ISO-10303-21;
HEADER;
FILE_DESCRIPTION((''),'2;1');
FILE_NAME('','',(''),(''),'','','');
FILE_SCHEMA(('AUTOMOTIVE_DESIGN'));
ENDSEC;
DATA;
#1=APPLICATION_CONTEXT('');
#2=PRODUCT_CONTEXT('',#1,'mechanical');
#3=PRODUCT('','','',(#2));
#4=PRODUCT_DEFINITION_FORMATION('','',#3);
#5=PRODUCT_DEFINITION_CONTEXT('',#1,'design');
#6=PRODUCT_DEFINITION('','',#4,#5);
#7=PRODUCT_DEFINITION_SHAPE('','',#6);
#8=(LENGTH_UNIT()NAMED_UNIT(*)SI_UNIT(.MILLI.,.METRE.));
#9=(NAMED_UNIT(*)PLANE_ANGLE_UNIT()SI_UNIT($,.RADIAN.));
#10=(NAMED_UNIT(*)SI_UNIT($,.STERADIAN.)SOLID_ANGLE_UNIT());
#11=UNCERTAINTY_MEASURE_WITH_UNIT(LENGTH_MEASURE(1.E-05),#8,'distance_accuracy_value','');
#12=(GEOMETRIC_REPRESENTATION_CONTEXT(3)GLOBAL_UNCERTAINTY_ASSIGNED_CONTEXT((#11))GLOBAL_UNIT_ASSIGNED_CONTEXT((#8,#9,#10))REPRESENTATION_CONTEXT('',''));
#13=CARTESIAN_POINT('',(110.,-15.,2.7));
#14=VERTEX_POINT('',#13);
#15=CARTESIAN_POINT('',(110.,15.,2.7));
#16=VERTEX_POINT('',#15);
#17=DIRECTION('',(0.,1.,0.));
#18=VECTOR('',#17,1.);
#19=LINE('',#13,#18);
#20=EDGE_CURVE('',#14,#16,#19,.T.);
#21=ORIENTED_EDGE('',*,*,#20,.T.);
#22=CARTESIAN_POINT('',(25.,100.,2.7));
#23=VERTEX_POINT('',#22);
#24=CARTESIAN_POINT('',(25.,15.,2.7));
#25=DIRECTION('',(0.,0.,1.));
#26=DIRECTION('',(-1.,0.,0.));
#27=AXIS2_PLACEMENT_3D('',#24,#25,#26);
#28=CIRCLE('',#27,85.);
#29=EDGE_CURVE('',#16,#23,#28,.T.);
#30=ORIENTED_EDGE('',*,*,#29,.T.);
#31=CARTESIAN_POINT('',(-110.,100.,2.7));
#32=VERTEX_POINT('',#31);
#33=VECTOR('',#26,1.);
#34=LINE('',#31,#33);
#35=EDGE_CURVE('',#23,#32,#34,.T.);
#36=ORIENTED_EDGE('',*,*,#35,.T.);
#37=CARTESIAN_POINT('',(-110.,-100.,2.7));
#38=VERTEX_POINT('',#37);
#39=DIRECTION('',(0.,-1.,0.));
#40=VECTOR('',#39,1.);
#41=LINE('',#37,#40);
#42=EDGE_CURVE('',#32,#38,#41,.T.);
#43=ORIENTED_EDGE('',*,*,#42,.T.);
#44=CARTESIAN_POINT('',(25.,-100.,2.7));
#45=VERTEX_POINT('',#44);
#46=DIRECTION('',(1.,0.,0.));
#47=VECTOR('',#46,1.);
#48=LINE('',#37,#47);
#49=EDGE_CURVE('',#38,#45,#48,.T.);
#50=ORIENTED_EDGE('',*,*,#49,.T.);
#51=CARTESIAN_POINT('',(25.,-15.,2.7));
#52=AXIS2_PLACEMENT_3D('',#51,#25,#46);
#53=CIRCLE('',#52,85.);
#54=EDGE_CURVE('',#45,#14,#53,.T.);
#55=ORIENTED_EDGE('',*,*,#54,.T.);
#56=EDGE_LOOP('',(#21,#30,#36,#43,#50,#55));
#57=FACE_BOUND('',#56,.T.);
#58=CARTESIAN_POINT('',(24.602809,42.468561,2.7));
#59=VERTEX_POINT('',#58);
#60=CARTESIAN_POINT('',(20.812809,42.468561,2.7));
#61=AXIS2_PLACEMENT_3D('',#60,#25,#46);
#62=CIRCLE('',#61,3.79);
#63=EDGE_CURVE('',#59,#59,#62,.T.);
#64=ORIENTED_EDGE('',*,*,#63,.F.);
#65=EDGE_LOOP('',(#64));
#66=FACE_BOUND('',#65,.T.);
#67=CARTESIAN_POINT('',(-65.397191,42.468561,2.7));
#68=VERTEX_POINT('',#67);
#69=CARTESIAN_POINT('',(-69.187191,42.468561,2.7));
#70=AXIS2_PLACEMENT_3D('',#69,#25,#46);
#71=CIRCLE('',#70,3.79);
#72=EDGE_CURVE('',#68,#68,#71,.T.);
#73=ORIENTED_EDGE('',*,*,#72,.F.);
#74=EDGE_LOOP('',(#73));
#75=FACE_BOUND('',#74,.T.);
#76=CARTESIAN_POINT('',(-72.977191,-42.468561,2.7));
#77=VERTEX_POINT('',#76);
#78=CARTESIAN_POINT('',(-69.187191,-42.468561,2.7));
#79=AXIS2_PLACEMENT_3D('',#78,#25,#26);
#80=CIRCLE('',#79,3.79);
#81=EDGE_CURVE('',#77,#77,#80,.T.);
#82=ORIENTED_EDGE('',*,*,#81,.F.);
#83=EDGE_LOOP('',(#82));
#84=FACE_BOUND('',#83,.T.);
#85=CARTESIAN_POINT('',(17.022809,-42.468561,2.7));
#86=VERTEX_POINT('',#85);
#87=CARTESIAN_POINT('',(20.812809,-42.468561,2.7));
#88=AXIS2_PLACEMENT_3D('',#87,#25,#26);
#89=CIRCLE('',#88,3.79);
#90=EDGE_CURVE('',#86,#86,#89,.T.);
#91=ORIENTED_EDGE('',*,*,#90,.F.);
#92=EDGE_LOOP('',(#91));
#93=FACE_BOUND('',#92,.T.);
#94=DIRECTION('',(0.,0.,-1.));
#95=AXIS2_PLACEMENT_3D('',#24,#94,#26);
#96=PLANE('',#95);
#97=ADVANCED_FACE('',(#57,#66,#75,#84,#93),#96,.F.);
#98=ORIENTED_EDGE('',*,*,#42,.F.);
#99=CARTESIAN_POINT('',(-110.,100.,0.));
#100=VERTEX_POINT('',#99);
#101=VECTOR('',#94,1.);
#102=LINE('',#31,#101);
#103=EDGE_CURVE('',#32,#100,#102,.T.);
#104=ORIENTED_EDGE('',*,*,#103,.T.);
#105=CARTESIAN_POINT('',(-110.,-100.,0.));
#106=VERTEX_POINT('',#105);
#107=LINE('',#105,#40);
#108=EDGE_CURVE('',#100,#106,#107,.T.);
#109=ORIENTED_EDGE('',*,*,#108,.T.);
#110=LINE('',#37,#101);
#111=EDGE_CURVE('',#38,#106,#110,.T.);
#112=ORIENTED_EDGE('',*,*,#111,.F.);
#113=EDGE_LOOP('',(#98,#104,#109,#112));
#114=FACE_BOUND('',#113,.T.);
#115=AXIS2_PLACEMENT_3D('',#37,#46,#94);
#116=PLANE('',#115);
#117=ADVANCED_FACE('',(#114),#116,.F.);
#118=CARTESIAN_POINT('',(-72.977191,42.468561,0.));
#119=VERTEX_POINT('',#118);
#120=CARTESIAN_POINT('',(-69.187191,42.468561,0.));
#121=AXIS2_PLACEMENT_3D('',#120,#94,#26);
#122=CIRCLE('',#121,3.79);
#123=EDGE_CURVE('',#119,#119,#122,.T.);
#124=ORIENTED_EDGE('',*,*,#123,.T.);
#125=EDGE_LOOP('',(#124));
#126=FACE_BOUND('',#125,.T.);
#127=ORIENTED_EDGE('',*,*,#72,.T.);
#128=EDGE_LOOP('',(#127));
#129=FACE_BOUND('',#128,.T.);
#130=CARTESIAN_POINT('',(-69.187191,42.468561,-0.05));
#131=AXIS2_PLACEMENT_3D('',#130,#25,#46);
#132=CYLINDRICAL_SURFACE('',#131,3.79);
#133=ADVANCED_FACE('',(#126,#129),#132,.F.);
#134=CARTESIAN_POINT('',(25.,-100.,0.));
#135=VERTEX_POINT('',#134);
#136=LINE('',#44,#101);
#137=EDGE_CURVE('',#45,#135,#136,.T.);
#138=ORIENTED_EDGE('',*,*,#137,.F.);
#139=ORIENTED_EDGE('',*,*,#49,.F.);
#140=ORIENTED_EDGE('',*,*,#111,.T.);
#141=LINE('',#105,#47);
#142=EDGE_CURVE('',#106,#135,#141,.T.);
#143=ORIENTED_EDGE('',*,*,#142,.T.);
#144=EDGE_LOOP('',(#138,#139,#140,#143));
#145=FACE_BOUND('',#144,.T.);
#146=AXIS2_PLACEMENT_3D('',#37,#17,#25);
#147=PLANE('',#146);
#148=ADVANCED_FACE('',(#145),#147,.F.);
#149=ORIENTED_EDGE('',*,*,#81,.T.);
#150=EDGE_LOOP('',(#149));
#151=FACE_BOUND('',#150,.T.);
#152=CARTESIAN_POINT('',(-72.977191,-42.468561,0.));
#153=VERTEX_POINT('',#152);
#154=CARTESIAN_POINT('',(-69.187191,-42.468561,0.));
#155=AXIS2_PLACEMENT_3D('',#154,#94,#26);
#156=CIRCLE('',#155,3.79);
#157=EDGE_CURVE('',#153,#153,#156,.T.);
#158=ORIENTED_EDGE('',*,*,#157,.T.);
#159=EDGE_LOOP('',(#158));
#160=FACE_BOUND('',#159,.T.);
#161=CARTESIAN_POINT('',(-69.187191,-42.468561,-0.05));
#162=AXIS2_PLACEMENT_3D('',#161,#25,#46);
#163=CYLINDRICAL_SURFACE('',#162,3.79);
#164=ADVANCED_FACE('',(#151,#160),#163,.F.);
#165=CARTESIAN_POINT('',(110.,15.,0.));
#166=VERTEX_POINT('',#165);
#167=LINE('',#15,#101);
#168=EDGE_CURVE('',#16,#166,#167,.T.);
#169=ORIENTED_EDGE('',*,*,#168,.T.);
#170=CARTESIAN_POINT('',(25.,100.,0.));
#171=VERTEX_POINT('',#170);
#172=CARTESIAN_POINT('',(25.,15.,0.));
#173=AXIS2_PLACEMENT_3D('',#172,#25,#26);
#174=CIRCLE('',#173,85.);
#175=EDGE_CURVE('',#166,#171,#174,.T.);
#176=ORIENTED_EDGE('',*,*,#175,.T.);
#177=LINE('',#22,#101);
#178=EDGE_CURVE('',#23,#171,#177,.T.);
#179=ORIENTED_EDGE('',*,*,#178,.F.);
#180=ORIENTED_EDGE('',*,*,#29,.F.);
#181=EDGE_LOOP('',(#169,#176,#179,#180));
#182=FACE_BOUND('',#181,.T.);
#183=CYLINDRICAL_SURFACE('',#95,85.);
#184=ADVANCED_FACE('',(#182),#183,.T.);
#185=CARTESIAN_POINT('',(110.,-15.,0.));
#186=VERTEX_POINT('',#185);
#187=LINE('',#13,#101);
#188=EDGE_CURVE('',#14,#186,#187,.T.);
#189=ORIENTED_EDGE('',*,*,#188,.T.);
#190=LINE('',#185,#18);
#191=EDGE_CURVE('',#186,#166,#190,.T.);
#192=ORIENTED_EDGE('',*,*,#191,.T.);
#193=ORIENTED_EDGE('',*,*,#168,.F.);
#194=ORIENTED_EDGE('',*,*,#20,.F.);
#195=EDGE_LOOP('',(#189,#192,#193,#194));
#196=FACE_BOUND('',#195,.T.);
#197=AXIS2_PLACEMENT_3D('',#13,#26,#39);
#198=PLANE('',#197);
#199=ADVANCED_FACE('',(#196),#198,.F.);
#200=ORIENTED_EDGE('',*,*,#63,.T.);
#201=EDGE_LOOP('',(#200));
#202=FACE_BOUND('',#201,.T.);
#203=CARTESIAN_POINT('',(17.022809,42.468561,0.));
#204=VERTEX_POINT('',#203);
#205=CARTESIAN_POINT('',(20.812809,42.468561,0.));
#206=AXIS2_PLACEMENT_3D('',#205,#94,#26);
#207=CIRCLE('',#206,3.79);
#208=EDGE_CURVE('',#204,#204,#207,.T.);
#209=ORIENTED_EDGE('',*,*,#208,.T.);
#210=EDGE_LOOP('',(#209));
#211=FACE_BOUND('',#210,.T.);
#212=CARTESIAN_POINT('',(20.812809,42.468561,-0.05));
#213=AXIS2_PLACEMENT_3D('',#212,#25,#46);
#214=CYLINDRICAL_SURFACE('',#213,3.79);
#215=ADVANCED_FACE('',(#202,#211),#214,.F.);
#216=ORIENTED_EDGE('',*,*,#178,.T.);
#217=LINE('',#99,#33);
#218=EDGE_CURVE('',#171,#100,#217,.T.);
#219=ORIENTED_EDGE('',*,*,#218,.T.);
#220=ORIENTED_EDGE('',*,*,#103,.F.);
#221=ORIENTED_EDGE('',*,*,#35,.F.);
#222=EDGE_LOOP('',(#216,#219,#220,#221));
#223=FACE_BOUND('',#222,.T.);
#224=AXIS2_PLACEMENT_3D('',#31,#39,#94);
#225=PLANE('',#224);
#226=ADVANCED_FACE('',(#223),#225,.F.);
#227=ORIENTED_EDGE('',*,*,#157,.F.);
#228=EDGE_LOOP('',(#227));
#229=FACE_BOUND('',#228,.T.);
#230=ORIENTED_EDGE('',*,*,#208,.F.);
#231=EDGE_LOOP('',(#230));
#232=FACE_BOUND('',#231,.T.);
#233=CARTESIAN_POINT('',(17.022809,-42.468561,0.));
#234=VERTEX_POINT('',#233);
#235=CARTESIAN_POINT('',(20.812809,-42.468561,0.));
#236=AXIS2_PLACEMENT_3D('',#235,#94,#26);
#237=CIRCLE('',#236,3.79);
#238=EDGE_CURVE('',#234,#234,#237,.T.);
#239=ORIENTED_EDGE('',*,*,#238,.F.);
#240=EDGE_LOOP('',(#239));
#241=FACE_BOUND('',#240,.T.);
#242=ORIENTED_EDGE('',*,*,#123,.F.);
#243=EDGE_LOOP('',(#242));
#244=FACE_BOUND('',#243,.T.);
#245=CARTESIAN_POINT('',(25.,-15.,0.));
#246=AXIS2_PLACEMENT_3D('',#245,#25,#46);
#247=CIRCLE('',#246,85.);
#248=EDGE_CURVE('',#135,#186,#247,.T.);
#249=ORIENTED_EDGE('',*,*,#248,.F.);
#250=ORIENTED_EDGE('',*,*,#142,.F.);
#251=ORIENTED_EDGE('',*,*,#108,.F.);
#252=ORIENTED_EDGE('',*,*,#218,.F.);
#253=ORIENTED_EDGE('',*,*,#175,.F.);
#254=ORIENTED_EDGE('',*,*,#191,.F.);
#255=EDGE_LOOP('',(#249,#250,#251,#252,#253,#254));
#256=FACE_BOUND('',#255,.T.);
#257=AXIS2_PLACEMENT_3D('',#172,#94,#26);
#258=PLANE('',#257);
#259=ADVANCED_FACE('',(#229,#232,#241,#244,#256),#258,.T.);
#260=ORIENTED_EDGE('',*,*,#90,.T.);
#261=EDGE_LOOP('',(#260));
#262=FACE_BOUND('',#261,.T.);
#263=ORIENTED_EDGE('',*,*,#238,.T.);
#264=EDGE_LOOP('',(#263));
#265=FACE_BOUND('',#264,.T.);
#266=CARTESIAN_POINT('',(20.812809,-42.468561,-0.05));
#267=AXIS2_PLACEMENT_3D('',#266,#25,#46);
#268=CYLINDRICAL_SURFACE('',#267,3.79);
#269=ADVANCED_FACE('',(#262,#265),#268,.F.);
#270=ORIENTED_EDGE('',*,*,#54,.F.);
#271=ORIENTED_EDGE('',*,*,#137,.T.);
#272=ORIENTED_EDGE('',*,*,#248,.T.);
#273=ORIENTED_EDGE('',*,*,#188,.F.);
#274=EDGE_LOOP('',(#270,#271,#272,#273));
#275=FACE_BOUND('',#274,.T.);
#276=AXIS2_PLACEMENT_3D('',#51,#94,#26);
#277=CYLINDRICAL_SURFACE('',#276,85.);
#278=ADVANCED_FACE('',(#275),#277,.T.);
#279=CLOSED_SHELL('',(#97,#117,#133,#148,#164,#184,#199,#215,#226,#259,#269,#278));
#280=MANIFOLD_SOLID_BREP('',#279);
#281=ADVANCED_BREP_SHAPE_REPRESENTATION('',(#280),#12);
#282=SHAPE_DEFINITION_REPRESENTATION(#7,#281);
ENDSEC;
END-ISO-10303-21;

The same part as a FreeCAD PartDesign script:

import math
import FreeCAD as App
import Part
import Sketcher
from FreeCAD import Vector
Q = App.Units.Quantity

doc = App.newDocument("Part")
body = doc.addObject("PartDesign::Body", "Body")

sketch1 = doc.addObject("Sketcher::SketchObject", "Sketch")
body.addObject(sketch1)
sketch1.AttachmentSupport = (doc.XY_Plane, [""])
sketch1.MapMode = "FlatFace"
sketch1.addGeometry([
    Part.LineSegment(Vector(-110, -100, 0), Vector(25, -100, 0)),
    Part.ArcOfCircle(Part.Circle(Vector(25, -15, 0), Vector(0, 0, 1), 85), math.radians(-90), math.radians(0)),
    Part.LineSegment(Vector(110, -15, 0), Vector(110, 15, 0)),
    Part.ArcOfCircle(Part.Circle(Vector(25, 15, 0), Vector(0, 0, 1), 85), math.radians(0), math.radians(90)),
    Part.LineSegment(Vector(25, 100, 0), Vector(-110, 100, 0)),
    Part.LineSegment(Vector(-110, 100, 0), Vector(-110, -100, 0)),
], False)
sketch1.addConstraint([
    Sketcher.Constraint("Tangent", 0, 2, 1, 1),
    Sketcher.Constraint("Tangent", 1, 2, 2, 1),
    Sketcher.Constraint("Tangent", 2, 2, 3, 1),
    Sketcher.Constraint("Tangent", 3, 2, 4, 1),
    Sketcher.Constraint("Coincident", 4, 2, 5, 1),
    Sketcher.Constraint("Coincident", 5, 2, 0, 1),
    Sketcher.Constraint("Horizontal", 0),
    Sketcher.Constraint("Vertical", 2),
    Sketcher.Constraint("Horizontal", 4),
    Sketcher.Constraint("Vertical", 5),
    Sketcher.Constraint("Equal", 1, 3),
    Sketcher.Constraint("Radius", 1, Q("85 mm")),
    Sketcher.Constraint("DistanceX", 0, 1, 0, 2, Q("135 mm")),
    Sketcher.Constraint("DistanceY", 2, 1, 2, 2, Q("30 mm")),
    Sketcher.Constraint("DistanceX", -1, 1, 1, 3, Q("25 mm")),
    Sketcher.Constraint("DistanceY", 1, 3, -1, 1, Q("15 mm")),
])
pad1 = doc.addObject("PartDesign::Pad", "Pad")
body.addObject(pad1)
pad1.Profile = sketch1
pad1.Length = 2.7

sketch2 = doc.addObject("Sketcher::SketchObject", "Sketch001")
body.addObject(sketch2)
sketch2.AttachmentSupport = (doc.XY_Plane, [""])
sketch2.MapMode = "FlatFace"
sketch2.AttachmentOffset = App.Placement(Vector(0, 0, 2.7), App.Rotation())
sketch2.addGeometry([
    Part.Circle(Vector(-69.187191, 42.468561, 0), Vector(0, 0, 1), 3.79),
    Part.Circle(Vector(20.812809, 42.468561, 0), Vector(0, 0, 1), 3.79),
    Part.Circle(Vector(20.812809, -42.468561, 0), Vector(0, 0, 1), 3.79),
    Part.Circle(Vector(-69.187191, -42.468561, 0), Vector(0, 0, 1), 3.79),
], False)
sketch2.addConstraint([
    Sketcher.Constraint("Equal", 0, 1),
    Sketcher.Constraint("Equal", 1, 2),
    Sketcher.Constraint("Equal", 2, 3),
    Sketcher.Constraint("Symmetric", 1, 3, 2, 3, -1),
    Sketcher.Constraint("Symmetric", 0, 3, 3, 3, -1),
    Sketcher.Constraint("Horizontal", 0, 3, 1, 3),
    Sketcher.Constraint("Diameter", 0, Q("7.58 mm")),
    Sketcher.Constraint("DistanceX", 0, 3, 1, 3, Q("90 mm")),
    Sketcher.Constraint("DistanceX", 0, 3, -1, 1, Q("69.187191 mm")),
    Sketcher.Constraint("DistanceY", -1, 1, 0, 3, Q("42.468561 mm")),
])
pocket1 = doc.addObject("PartDesign::Pocket", "Pocket")
body.addObject(pocket1)
pocket1.Profile = sketch2
pocket1.Length = 2.75

doc.recompute()
